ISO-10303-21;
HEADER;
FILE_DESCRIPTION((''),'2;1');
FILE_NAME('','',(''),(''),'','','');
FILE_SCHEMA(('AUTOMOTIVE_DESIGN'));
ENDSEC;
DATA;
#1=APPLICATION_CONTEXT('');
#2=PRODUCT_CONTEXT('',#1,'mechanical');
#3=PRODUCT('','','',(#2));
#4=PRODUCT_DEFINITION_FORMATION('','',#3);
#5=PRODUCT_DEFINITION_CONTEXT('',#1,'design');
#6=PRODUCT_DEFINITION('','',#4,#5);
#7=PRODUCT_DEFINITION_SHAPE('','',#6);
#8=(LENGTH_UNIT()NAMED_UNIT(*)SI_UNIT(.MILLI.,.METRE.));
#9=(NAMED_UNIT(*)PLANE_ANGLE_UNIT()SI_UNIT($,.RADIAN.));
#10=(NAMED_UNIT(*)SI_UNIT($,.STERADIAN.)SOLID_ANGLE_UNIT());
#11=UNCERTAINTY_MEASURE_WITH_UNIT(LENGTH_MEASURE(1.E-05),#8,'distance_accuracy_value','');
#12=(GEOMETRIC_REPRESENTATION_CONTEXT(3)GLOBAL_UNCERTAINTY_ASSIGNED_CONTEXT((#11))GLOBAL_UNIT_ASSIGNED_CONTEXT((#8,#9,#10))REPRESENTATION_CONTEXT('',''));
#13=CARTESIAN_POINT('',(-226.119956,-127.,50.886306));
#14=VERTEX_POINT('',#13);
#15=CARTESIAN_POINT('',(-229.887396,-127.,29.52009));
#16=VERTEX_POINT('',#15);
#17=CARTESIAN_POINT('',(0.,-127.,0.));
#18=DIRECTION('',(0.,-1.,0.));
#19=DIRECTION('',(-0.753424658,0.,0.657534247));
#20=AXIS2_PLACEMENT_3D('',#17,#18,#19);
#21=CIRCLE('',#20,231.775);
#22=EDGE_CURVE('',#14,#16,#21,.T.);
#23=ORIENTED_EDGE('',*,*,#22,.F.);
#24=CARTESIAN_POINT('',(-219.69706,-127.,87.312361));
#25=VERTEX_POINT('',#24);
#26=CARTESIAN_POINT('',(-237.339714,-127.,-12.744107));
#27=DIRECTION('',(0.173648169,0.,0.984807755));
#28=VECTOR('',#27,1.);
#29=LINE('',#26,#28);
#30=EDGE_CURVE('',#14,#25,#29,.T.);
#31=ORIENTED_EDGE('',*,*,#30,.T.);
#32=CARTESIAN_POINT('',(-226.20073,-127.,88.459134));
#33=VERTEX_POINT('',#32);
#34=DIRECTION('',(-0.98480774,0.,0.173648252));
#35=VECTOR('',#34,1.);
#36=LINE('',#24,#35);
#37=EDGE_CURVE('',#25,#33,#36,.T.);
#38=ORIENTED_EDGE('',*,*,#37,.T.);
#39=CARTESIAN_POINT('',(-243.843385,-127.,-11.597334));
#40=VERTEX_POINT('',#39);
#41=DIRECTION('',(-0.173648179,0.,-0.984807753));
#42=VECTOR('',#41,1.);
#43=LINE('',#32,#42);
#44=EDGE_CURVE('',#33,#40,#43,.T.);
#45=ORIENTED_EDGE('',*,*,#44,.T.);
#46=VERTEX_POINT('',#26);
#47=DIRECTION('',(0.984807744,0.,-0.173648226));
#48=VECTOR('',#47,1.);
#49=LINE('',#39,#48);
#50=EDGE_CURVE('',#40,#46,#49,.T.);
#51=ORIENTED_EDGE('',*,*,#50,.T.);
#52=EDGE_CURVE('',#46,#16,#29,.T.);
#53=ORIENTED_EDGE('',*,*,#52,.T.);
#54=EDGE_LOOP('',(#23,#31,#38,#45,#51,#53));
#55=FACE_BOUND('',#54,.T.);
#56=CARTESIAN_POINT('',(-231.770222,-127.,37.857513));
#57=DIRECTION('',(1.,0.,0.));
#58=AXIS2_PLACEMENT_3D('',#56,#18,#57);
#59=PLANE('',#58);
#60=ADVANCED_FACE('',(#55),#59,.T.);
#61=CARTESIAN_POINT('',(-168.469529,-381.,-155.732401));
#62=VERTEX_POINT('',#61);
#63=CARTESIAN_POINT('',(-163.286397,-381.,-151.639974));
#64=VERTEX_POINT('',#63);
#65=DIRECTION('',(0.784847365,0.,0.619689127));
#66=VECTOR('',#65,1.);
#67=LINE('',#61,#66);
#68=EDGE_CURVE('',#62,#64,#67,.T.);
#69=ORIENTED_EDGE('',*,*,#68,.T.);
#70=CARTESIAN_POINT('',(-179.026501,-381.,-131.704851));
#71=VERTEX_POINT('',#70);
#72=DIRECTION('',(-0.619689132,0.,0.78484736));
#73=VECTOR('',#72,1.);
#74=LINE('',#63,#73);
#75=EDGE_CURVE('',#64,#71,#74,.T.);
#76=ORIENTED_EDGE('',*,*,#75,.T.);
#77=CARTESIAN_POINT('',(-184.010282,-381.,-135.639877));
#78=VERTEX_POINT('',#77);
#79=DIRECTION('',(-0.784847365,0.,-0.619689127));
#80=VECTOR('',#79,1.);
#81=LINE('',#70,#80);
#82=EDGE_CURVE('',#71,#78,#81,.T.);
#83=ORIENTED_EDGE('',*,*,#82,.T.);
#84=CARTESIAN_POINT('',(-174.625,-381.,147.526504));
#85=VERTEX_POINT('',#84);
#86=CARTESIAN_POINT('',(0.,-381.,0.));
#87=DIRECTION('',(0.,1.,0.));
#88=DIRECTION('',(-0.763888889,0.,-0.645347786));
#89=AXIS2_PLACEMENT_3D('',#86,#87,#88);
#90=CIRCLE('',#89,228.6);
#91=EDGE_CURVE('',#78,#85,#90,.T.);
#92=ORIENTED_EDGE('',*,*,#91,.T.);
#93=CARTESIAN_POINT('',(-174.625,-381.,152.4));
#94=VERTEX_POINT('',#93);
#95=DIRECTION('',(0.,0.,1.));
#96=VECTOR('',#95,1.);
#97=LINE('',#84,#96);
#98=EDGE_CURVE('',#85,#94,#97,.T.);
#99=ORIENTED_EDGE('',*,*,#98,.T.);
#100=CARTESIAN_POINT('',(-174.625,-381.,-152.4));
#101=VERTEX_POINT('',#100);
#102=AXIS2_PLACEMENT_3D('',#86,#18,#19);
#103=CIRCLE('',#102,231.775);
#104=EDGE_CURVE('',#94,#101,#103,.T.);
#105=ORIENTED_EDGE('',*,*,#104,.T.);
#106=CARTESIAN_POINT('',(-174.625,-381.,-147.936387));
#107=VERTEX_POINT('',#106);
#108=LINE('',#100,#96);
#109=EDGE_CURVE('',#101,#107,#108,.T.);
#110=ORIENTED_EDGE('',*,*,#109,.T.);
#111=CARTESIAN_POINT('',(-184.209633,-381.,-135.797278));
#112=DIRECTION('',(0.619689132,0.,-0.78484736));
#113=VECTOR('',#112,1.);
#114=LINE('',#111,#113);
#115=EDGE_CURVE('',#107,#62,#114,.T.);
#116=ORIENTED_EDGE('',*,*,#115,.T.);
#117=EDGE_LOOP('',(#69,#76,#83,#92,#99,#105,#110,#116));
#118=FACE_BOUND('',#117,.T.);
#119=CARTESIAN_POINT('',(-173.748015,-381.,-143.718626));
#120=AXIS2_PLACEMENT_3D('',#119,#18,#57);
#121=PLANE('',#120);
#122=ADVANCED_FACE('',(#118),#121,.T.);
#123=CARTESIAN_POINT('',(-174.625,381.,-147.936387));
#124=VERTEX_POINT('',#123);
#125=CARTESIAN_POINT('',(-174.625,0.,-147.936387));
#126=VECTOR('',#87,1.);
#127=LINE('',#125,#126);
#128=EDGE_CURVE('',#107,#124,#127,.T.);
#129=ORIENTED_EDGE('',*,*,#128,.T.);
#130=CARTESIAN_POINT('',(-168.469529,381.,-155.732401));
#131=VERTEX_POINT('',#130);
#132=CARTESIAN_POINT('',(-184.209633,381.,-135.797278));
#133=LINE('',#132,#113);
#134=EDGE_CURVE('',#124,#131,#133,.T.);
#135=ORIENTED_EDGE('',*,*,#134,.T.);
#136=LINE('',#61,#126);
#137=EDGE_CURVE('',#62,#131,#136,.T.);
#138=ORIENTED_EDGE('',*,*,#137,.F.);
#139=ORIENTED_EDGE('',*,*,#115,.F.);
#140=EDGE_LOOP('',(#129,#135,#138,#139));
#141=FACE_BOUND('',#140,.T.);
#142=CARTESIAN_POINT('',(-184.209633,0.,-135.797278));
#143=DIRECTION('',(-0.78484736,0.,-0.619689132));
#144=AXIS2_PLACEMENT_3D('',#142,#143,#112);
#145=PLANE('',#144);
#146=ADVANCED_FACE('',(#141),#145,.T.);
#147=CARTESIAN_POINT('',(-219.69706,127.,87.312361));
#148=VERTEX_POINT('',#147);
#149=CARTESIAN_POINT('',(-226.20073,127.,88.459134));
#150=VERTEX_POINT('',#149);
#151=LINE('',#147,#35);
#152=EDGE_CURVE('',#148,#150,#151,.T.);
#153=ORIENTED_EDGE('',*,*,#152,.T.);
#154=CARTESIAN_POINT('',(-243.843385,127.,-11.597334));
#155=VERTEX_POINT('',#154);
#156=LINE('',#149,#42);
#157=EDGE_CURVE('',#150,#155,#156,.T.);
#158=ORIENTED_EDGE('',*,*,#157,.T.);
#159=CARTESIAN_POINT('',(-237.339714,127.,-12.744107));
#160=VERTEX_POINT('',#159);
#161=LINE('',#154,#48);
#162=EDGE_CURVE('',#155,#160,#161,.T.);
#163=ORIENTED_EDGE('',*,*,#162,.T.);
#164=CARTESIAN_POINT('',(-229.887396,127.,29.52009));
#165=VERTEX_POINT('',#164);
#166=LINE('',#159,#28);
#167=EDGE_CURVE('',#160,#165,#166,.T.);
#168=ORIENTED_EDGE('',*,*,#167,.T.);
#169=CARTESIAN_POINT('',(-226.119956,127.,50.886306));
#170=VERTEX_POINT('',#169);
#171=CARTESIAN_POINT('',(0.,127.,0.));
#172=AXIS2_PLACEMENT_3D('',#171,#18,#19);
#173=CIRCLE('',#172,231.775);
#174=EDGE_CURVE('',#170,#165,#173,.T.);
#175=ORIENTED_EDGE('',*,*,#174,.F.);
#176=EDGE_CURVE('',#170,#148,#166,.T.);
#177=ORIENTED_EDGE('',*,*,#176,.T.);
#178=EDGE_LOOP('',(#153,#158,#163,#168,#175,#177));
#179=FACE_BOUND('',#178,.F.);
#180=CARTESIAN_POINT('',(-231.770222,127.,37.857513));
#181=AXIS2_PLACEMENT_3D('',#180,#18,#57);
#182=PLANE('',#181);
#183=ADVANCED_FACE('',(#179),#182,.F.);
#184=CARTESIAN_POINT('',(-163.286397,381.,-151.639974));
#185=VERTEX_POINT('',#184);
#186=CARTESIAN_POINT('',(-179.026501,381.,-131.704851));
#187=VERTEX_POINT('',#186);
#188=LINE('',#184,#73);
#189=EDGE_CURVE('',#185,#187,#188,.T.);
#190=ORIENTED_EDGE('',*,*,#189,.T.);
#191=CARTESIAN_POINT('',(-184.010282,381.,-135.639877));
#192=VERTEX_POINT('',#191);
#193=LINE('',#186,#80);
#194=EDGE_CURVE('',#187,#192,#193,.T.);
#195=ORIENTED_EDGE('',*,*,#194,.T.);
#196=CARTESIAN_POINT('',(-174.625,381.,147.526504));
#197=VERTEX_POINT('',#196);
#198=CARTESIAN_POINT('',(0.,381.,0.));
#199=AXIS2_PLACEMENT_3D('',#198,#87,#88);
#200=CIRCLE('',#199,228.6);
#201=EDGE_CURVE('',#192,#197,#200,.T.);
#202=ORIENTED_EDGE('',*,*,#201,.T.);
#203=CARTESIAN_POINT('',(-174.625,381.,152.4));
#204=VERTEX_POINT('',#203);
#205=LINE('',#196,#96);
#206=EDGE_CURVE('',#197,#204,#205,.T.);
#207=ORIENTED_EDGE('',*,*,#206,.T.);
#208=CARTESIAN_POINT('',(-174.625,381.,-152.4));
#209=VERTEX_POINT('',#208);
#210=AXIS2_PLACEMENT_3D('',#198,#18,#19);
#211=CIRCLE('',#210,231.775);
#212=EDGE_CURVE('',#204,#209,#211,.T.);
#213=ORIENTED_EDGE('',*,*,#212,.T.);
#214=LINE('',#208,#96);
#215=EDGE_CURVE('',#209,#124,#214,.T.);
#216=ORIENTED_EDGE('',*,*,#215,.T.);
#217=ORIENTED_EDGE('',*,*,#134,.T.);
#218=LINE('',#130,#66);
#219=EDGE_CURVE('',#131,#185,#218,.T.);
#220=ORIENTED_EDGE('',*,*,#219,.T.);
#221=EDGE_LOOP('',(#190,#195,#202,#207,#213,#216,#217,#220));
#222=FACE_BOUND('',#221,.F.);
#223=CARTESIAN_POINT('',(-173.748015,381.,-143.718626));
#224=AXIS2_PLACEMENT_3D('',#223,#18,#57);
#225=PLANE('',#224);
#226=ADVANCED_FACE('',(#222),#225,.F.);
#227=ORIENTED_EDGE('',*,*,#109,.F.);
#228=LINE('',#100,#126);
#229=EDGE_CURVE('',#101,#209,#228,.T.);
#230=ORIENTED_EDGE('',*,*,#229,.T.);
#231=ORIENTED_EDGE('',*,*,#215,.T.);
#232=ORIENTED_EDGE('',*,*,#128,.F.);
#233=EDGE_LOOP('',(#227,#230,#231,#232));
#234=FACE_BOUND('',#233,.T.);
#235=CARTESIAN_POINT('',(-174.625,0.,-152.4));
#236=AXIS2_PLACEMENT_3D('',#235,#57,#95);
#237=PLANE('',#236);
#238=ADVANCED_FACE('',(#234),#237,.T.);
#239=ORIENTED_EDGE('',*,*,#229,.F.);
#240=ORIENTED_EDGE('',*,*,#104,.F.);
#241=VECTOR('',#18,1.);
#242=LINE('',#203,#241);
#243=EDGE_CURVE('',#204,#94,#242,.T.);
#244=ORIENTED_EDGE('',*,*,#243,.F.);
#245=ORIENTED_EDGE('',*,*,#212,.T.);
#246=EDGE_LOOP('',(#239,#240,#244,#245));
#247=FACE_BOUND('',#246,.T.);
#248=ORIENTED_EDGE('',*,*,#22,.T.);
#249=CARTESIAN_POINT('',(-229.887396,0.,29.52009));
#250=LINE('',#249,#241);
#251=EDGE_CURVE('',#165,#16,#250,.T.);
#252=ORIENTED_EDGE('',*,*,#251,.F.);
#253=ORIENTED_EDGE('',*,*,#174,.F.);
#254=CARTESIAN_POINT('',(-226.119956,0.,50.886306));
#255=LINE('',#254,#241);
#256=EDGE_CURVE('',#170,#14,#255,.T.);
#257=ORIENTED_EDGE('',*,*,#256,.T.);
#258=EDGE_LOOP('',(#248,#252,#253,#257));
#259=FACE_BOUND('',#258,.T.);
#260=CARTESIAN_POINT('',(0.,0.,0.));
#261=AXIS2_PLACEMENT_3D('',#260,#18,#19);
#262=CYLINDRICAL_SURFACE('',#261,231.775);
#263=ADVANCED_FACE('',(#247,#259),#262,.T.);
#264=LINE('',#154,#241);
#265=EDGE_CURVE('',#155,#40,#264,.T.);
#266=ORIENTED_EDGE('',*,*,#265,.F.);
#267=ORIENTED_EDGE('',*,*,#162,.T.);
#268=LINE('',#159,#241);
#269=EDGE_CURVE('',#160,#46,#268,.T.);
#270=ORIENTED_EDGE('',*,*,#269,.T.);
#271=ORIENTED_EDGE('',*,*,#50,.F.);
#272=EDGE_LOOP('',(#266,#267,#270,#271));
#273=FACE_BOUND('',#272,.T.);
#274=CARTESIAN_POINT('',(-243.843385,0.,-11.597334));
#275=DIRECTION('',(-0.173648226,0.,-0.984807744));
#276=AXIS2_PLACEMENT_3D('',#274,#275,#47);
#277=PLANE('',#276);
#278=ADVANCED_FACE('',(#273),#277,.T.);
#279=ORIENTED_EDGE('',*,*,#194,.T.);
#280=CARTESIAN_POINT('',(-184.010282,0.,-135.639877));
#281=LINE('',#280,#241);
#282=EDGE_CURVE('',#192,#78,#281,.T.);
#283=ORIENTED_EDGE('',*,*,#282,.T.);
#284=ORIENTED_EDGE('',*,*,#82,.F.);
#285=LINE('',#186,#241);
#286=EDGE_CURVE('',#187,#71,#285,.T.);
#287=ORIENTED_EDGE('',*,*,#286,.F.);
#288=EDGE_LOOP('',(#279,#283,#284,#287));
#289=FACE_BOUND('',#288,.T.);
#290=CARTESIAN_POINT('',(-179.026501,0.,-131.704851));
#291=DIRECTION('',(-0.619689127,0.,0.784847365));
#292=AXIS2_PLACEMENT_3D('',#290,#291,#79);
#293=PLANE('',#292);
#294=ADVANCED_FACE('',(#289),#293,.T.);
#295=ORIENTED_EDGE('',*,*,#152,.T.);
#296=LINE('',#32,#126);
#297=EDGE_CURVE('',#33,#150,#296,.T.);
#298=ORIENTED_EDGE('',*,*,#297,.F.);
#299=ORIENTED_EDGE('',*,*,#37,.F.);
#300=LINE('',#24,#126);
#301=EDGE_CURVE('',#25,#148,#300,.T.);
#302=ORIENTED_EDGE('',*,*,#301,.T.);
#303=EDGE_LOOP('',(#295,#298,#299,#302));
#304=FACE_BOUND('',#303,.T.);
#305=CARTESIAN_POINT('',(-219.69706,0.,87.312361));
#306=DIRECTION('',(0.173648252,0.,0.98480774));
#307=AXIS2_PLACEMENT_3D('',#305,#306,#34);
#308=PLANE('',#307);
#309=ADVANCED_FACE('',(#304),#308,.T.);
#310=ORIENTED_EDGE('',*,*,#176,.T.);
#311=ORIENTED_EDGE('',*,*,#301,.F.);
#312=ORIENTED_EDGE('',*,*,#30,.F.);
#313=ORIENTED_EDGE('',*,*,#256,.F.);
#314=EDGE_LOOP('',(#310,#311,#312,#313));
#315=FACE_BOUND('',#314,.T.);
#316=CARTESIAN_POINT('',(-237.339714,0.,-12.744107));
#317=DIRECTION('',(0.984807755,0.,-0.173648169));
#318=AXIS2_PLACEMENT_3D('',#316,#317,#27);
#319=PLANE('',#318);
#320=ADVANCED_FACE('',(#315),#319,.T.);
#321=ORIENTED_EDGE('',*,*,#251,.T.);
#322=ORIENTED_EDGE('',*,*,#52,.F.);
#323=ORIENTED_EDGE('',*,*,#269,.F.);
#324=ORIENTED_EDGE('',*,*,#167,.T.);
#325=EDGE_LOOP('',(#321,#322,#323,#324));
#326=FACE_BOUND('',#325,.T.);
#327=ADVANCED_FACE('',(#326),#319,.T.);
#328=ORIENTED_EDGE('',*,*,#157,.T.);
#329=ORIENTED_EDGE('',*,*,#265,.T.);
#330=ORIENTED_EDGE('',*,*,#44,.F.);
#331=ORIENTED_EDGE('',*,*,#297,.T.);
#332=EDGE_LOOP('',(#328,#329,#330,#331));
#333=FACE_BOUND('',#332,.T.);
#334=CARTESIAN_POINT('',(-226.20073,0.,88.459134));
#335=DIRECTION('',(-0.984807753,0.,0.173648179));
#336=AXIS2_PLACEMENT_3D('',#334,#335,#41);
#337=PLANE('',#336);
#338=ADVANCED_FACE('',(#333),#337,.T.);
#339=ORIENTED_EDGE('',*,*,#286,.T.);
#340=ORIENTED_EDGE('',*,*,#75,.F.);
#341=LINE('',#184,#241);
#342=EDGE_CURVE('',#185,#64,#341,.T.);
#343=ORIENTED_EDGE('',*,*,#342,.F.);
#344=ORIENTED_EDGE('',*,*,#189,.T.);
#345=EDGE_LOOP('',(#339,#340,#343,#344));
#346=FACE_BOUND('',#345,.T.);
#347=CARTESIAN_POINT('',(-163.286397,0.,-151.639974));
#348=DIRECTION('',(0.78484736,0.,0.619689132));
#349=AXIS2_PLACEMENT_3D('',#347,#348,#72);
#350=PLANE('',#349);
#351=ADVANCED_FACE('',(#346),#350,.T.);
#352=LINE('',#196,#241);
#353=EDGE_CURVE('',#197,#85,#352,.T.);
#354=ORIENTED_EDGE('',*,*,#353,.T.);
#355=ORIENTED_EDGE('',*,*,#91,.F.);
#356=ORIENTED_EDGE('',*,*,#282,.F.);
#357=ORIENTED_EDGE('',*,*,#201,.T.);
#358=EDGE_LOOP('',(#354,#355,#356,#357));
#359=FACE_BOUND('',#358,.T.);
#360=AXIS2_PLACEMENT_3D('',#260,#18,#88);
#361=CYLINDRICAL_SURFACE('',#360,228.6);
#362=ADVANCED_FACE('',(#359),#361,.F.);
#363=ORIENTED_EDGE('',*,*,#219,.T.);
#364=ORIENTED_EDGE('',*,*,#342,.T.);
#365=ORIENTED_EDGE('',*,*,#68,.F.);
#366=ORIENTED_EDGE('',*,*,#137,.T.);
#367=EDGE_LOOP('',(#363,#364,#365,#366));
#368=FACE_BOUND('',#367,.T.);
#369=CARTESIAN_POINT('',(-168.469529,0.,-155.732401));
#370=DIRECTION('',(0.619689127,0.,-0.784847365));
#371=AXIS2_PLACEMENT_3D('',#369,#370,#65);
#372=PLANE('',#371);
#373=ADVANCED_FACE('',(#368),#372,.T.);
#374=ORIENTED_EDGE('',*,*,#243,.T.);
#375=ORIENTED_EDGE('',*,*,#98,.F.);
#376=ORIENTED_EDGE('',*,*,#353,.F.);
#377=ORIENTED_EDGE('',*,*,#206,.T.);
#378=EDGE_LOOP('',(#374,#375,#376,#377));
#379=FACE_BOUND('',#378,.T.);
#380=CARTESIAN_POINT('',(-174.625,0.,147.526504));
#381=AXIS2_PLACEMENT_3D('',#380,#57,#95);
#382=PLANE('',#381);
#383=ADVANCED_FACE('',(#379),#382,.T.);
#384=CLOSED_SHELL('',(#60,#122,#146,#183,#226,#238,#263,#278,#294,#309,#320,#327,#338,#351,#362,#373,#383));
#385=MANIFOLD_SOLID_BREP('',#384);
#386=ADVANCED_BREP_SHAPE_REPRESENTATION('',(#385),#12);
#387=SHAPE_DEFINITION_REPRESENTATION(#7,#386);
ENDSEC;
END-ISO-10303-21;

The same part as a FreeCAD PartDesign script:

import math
import FreeCAD as App
import Part
import Sketcher

V = App.Vector
Q = App.Units.Quantity

doc = App.newDocument("Part")
params = doc.addObject("Spreadsheet::Sheet", "Params")
for row, (alias, value) in enumerate([
    ("sketch1_radius", "9 in"),
    ("sketch1_radius2", "9.125 in"),
    ("pad1_length", "30 in"),
    ("sketch2_length", "4 in"),
    ("sketch2_length2", "0.26 in"),
    ("pad2_length", "10 in"),
    ("sketch3_length", "1 in"),
    ("sketch3_length2", "0.26 in"),
    ("pad3_length", "30 in"),
], start=1):
    params.set(f"A{row}", alias)
    params.set(f"B{row}", "=" + value)
    params.setAlias(f"B{row}", alias)

body = doc.addObject("PartDesign::Body", "Body")

# Sketch on XZ plane
sketch1 = body.newObject("Sketcher::SketchObject", "Sketch")
sketch1.AttachmentSupport = (doc.getObject("XZ_Plane"), [""])
sketch1.MapMode = "FlatFace"
sketch1.addGeometry([
    Part.ArcOfCircle(Part.Circle(V(0, 0, 0), V(0, 0, 1), 228.6), math.radians(140), math.radians(220)),
    Part.LineSegment(V(-174.6, 147.5, 0), V(-174.6, 152.4, 0)),
    Part.ArcOfCircle(Part.Circle(V(0, 0, 0), V(0, 0, 1), 231.8), math.radians(139), math.radians(221)),
    Part.LineSegment(V(-174.6, -152.4, 0), V(-174.6, -147.5, 0)),
], False)
sketch1.addConstraint([
    Sketcher.Constraint("Coincident", 0, 1, 1, 1),
    Sketcher.Constraint("Coincident", 1, 2, 2, 1),
    Sketcher.Constraint("Coincident", 2, 2, 3, 1),
    Sketcher.Constraint("Coincident", 3, 2, 0, 2),
    Sketcher.Constraint("Vertical", 1),
    Sketcher.Constraint("Vertical", 3),
    Sketcher.Constraint("Coincident", 0, 3, -1, 1),
    Sketcher.Constraint("Coincident", 2, 3, -1, 1),
    Sketcher.Constraint("Vertical", 1, 2, 2, 2),
    Sketcher.Constraint("Radius", 0, Q("9 in")),
    Sketcher.Constraint("DistanceY", -1, 1, 1, 2, Q("6 in")),
    Sketcher.Constraint("Radius", 2, Q("9.125 in")),
])
sketch1.setExpression("Constraints[9]", "Params.sketch1_radius")
sketch1.setExpression("Constraints[11]", "Params.sketch1_radius2")
pad1 = body.newObject("PartDesign::Pad", "Pad")
pad1.Profile = sketch1
pad1.setExpression("Length", "Params.pad1_length")
pad1.Midplane = True

# Sketch on XZ plane
sketch2 = body.newObject("Sketcher::SketchObject", "Sketch001")
sketch2.AttachmentSupport = (doc.getObject("XZ_Plane"), [""])
sketch2.MapMode = "FlatFace"
sketch2.addGeometry([
    Part.LineSegment(V(-226, 88, 0), V(-244, -12, 0)),
    Part.LineSegment(V(-244, -12, 0), V(-237, -13, 0)),
    Part.LineSegment(V(-237, -13, 0), V(-220, 87, 0)),
    Part.LineSegment(V(-220, 87, 0), V(-226, 88, 0)),
], False)
sketch2.addConstraint([
    Sketcher.Constraint("Coincident", 0, 2, 1, 1),
    Sketcher.Constraint("Coincident", 1, 2, 2, 1),
    Sketcher.Constraint("Coincident", 2, 2, 3, 1),
    Sketcher.Constraint("Coincident", 3, 2, 0, 1),
    Sketcher.Constraint("Perpendicular", 0, 1),
    Sketcher.Constraint("Perpendicular", 1, 2),
    Sketcher.Constraint("Perpendicular", 2, 3),
    Sketcher.Constraint("Distance", 0, Q("4 in")),
    Sketcher.Constraint("Angle", 0, Q("-100 deg")),
    Sketcher.Constraint("Distance", 1, Q("0.26 in")),
    Sketcher.Constraint("DistanceX", 2, 2, -1, 1, 219.69706),
    Sketcher.Constraint("DistanceY", -1, 1, 2, 2, 87.312361),
])
sketch2.setExpression("Constraints[7]", "Params.sketch2_length")
sketch2.setExpression("Constraints[9]", "Params.sketch2_length2")
pad2 = body.newObject("PartDesign::Pad", "Pad001")
pad2.Profile = sketch2
pad2.setExpression("Length", "Params.pad2_length")
pad2.Midplane = True

# Sketch on XZ plane
sketch3 = body.newObject("Sketcher::SketchObject", "Sketch002")
sketch3.AttachmentSupport = (doc.getObject("XZ_Plane"), [""])
sketch3.MapMode = "FlatFace"
sketch3.addGeometry([
    Part.LineSegment(V(-168, -156, 0), V(-163, -152, 0)),
    Part.LineSegment(V(-163, -152, 0), V(-179, -132, 0)),
    Part.LineSegment(V(-179, -132, 0), V(-184, -136, 0)),
    Part.LineSegment(V(-184, -136, 0), V(-168, -156, 0)),
], False)
sketch3.addConstraint([
    Sketcher.Constraint("Coincident", 0, 2, 1, 1),
    Sketcher.Constraint("Coincident", 1, 2, 2, 1),
    Sketcher.Constraint("Coincident", 2, 2, 3, 1),
    Sketcher.Constraint("Coincident", 3, 2, 0, 1),
    Sketcher.Constraint("Perpendicular", 0, 1),
    Sketcher.Constraint("Perpendicular", 1, 2),
    Sketcher.Constraint("Perpendicular", 2, 3),
    Sketcher.Constraint("Distance", 1, Q("1 in")),
    Sketcher.Constraint("Distance", 0, Q("0.26 in")),
    Sketcher.Constraint("DistanceX", 1, 2, -1, 1, 179.026501),
    Sketcher.Constraint("DistanceY", 3, 2, -1, 1, 155.732401),
    Sketcher.Constraint("DistanceY", 1, 2, -1, 1, 131.704851),
])
sketch3.setExpression("Constraints[7]", "Params.sketch3_length")
sketch3.setExpression("Constraints[8]", "Params.sketch3_length2")
pad3 = body.newObject("PartDesign::Pad", "Pad002")
pad3.Profile = sketch3
pad3.setExpression("Length", "Params.pad3_length")
pad3.Midplane = True

doc.recompute()
